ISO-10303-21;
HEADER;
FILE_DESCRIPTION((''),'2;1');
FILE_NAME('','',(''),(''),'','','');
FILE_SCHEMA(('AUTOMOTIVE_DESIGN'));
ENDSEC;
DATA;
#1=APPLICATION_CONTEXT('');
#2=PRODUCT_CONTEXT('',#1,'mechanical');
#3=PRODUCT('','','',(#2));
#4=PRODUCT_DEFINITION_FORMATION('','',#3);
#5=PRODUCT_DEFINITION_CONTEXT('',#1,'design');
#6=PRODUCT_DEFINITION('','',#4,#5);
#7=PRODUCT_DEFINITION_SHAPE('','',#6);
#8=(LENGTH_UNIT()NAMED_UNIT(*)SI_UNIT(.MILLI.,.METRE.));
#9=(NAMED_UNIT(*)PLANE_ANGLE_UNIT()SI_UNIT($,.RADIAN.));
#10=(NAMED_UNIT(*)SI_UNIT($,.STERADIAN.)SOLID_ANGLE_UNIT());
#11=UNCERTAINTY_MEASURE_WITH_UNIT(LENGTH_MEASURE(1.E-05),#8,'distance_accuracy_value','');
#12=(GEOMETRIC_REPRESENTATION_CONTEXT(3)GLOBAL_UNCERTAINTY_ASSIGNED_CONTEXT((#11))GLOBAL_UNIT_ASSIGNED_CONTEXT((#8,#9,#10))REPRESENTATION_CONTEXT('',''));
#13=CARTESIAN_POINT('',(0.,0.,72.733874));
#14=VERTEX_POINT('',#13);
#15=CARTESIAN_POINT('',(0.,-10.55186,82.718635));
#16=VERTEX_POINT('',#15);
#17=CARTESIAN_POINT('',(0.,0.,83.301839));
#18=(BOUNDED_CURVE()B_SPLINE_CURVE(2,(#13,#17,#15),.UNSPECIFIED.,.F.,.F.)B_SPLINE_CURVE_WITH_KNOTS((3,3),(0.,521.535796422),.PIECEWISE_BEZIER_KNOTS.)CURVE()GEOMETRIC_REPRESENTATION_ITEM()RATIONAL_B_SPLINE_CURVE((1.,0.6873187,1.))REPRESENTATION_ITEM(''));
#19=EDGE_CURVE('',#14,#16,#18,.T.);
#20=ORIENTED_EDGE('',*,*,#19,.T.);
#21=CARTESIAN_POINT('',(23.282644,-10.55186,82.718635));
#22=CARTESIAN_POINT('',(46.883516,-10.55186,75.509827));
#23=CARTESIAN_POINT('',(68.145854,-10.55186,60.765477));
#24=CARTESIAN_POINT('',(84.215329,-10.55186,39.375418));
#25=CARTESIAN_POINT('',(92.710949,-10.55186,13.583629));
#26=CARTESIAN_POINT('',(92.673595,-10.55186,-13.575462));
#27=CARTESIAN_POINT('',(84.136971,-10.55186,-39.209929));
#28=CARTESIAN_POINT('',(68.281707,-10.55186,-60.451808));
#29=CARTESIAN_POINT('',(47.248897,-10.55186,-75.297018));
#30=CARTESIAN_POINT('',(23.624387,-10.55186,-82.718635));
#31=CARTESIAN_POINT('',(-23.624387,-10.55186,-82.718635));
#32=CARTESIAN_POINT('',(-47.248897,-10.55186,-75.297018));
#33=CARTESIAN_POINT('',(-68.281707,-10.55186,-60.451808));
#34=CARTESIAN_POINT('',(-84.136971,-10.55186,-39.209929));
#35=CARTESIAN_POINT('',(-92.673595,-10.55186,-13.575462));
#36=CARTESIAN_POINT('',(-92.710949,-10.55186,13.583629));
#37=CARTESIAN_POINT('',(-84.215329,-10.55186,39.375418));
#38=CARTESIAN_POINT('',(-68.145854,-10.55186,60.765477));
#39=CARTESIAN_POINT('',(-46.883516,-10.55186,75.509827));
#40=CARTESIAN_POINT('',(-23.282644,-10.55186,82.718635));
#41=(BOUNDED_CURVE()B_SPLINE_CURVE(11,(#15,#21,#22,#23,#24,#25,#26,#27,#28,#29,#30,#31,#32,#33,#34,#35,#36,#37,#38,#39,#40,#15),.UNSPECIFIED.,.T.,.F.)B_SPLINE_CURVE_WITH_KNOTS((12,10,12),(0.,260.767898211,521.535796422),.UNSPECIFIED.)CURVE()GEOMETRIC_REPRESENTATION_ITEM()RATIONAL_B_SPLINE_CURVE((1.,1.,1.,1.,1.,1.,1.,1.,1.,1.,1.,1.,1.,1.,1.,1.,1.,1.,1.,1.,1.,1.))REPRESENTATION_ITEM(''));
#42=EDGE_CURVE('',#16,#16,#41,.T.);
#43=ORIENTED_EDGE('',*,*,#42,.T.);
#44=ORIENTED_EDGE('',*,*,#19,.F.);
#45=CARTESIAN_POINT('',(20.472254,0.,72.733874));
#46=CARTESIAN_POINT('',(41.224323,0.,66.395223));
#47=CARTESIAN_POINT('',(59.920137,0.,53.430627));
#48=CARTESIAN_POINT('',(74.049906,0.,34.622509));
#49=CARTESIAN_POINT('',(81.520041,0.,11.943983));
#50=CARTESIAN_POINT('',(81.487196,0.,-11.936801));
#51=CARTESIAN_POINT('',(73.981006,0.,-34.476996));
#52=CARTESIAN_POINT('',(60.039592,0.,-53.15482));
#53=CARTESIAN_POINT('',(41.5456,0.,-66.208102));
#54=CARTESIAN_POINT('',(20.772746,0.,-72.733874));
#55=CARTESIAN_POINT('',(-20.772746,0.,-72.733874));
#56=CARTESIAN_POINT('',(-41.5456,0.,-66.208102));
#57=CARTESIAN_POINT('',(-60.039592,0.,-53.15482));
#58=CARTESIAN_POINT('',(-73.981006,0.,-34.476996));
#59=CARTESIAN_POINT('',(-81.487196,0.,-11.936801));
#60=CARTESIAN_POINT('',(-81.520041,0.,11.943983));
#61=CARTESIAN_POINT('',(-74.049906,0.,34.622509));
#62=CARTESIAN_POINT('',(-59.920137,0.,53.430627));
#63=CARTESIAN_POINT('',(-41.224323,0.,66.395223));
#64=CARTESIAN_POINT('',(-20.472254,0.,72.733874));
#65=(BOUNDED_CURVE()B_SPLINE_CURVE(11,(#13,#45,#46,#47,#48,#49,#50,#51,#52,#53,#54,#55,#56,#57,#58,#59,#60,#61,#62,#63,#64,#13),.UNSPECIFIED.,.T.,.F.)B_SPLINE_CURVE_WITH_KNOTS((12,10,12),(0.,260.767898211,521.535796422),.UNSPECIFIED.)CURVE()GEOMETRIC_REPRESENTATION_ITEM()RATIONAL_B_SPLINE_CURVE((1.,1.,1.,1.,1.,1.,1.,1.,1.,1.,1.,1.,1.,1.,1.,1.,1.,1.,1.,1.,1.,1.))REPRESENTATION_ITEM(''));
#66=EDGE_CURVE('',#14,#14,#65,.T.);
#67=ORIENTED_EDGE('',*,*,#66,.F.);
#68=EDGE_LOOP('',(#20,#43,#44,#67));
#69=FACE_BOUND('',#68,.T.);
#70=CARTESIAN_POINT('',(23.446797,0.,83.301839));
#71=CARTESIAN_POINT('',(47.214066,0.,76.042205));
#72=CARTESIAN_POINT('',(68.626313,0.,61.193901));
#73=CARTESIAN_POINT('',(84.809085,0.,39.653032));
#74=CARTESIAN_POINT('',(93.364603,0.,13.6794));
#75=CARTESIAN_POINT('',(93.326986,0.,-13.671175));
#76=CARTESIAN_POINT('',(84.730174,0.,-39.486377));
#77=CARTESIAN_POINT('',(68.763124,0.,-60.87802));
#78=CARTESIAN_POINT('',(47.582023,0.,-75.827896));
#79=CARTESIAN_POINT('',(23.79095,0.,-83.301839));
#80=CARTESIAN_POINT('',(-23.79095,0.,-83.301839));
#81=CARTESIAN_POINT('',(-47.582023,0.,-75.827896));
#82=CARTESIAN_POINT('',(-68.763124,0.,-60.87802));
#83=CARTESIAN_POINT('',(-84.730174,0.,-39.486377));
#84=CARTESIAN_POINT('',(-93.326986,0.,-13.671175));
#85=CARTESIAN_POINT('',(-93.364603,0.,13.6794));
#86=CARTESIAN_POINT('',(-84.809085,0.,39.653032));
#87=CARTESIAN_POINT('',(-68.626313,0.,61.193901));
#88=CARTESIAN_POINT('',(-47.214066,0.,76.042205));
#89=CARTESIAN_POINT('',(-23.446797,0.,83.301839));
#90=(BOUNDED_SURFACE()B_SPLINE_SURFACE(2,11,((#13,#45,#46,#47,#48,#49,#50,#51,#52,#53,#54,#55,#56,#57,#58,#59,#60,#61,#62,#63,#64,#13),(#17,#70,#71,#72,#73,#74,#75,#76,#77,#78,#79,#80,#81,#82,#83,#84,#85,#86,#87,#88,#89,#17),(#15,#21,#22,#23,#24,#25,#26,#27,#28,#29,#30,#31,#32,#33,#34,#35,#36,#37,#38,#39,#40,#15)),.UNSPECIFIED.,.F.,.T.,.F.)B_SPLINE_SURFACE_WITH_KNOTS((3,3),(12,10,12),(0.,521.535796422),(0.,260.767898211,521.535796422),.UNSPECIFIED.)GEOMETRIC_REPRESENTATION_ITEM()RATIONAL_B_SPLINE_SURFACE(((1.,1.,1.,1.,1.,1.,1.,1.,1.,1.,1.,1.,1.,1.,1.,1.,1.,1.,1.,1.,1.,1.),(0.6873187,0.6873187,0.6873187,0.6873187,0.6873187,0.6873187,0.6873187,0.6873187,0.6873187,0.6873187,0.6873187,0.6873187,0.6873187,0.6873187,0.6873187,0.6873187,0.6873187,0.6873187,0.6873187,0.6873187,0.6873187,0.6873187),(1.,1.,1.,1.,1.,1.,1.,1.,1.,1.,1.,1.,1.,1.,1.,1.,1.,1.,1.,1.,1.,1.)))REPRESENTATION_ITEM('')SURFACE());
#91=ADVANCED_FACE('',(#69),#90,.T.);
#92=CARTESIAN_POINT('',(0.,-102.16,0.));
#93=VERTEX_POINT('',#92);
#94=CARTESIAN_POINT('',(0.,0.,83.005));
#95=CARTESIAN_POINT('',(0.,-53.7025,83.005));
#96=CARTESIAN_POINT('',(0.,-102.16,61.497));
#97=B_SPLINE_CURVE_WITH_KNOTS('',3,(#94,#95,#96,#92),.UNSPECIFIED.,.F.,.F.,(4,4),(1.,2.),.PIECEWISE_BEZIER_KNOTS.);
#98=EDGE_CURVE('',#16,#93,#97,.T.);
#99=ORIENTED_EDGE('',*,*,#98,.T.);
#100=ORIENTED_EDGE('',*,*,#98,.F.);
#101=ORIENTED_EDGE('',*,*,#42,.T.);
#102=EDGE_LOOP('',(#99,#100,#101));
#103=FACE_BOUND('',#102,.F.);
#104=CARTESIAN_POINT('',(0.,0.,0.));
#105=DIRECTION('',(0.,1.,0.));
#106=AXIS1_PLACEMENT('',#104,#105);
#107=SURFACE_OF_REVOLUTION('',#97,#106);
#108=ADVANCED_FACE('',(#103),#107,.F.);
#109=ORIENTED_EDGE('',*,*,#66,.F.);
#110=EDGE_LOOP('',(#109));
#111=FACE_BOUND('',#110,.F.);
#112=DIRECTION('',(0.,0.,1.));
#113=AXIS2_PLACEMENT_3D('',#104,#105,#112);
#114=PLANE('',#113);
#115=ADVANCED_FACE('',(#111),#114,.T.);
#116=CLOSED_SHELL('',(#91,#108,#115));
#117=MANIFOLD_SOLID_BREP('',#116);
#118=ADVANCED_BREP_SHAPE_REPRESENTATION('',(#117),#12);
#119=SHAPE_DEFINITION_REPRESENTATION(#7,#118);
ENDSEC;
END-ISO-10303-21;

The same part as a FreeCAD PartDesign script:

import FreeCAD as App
import Part
import Sketcher
from FreeCAD import Vector


def edges_at(feature, points):
    """Names of the edges that pass closest to the given points."""
    edges = feature.Shape.Edges
    near = lambda p: min(range(len(edges)), key=lambda i: edges[i].distToShape(Part.Vertex(*p))[0])
    return sorted({f"Edge{near(p) + 1}" for p in points})

doc = App.newDocument("Part")
body = doc.addObject("PartDesign::Body", "Body")

sketch1 = body.newObject("Sketcher::SketchObject", "Sketch")
sketch1.AttachmentSupport = (doc.getObject("YZ_Plane"), [""])
sketch1.MapMode = "FlatFace"
sketch1.addGeometry([
    Part.LineSegment(Vector(0, 0, 0), Vector(0, 83.005, 0)),
    Part.BSplineCurve([Vector(0, 83.005, 0), Vector(-53.7025, 83.005, 0), Vector(-102.16, 61.497, 0), Vector(-102.16, 0, 0)], [4, 4], [1, 2], False, 3, [1, 1, 1, 1], False),
    Part.LineSegment(Vector(-102.16, 0, 0), Vector(0, 0, 0)),
], False)
sketch1.addConstraint([
    Sketcher.Constraint("Block", 1),
    Sketcher.Constraint("Coincident", 0, 2, 1, 1),
    Sketcher.Constraint("Coincident", 1, 2, 2, 1),
    Sketcher.Constraint("Coincident", 2, 2, 0, 1),
    Sketcher.Constraint("Vertical", 0),
    Sketcher.Constraint("Horizontal", 2),
])
revolution = body.newObject("PartDesign::Revolution", "Revolution")
revolution.Profile = sketch1
revolution.ReferenceAxis = (sketch1, ["H_Axis"])
revolution.Angle = 360
doc.recompute()

fillet = body.newObject("PartDesign::Fillet", "Fillet")
fillet.Base = (revolution, edges_at(revolution, [(0, 0, -83.005)]))
fillet.Radius = 10

doc.recompute()
